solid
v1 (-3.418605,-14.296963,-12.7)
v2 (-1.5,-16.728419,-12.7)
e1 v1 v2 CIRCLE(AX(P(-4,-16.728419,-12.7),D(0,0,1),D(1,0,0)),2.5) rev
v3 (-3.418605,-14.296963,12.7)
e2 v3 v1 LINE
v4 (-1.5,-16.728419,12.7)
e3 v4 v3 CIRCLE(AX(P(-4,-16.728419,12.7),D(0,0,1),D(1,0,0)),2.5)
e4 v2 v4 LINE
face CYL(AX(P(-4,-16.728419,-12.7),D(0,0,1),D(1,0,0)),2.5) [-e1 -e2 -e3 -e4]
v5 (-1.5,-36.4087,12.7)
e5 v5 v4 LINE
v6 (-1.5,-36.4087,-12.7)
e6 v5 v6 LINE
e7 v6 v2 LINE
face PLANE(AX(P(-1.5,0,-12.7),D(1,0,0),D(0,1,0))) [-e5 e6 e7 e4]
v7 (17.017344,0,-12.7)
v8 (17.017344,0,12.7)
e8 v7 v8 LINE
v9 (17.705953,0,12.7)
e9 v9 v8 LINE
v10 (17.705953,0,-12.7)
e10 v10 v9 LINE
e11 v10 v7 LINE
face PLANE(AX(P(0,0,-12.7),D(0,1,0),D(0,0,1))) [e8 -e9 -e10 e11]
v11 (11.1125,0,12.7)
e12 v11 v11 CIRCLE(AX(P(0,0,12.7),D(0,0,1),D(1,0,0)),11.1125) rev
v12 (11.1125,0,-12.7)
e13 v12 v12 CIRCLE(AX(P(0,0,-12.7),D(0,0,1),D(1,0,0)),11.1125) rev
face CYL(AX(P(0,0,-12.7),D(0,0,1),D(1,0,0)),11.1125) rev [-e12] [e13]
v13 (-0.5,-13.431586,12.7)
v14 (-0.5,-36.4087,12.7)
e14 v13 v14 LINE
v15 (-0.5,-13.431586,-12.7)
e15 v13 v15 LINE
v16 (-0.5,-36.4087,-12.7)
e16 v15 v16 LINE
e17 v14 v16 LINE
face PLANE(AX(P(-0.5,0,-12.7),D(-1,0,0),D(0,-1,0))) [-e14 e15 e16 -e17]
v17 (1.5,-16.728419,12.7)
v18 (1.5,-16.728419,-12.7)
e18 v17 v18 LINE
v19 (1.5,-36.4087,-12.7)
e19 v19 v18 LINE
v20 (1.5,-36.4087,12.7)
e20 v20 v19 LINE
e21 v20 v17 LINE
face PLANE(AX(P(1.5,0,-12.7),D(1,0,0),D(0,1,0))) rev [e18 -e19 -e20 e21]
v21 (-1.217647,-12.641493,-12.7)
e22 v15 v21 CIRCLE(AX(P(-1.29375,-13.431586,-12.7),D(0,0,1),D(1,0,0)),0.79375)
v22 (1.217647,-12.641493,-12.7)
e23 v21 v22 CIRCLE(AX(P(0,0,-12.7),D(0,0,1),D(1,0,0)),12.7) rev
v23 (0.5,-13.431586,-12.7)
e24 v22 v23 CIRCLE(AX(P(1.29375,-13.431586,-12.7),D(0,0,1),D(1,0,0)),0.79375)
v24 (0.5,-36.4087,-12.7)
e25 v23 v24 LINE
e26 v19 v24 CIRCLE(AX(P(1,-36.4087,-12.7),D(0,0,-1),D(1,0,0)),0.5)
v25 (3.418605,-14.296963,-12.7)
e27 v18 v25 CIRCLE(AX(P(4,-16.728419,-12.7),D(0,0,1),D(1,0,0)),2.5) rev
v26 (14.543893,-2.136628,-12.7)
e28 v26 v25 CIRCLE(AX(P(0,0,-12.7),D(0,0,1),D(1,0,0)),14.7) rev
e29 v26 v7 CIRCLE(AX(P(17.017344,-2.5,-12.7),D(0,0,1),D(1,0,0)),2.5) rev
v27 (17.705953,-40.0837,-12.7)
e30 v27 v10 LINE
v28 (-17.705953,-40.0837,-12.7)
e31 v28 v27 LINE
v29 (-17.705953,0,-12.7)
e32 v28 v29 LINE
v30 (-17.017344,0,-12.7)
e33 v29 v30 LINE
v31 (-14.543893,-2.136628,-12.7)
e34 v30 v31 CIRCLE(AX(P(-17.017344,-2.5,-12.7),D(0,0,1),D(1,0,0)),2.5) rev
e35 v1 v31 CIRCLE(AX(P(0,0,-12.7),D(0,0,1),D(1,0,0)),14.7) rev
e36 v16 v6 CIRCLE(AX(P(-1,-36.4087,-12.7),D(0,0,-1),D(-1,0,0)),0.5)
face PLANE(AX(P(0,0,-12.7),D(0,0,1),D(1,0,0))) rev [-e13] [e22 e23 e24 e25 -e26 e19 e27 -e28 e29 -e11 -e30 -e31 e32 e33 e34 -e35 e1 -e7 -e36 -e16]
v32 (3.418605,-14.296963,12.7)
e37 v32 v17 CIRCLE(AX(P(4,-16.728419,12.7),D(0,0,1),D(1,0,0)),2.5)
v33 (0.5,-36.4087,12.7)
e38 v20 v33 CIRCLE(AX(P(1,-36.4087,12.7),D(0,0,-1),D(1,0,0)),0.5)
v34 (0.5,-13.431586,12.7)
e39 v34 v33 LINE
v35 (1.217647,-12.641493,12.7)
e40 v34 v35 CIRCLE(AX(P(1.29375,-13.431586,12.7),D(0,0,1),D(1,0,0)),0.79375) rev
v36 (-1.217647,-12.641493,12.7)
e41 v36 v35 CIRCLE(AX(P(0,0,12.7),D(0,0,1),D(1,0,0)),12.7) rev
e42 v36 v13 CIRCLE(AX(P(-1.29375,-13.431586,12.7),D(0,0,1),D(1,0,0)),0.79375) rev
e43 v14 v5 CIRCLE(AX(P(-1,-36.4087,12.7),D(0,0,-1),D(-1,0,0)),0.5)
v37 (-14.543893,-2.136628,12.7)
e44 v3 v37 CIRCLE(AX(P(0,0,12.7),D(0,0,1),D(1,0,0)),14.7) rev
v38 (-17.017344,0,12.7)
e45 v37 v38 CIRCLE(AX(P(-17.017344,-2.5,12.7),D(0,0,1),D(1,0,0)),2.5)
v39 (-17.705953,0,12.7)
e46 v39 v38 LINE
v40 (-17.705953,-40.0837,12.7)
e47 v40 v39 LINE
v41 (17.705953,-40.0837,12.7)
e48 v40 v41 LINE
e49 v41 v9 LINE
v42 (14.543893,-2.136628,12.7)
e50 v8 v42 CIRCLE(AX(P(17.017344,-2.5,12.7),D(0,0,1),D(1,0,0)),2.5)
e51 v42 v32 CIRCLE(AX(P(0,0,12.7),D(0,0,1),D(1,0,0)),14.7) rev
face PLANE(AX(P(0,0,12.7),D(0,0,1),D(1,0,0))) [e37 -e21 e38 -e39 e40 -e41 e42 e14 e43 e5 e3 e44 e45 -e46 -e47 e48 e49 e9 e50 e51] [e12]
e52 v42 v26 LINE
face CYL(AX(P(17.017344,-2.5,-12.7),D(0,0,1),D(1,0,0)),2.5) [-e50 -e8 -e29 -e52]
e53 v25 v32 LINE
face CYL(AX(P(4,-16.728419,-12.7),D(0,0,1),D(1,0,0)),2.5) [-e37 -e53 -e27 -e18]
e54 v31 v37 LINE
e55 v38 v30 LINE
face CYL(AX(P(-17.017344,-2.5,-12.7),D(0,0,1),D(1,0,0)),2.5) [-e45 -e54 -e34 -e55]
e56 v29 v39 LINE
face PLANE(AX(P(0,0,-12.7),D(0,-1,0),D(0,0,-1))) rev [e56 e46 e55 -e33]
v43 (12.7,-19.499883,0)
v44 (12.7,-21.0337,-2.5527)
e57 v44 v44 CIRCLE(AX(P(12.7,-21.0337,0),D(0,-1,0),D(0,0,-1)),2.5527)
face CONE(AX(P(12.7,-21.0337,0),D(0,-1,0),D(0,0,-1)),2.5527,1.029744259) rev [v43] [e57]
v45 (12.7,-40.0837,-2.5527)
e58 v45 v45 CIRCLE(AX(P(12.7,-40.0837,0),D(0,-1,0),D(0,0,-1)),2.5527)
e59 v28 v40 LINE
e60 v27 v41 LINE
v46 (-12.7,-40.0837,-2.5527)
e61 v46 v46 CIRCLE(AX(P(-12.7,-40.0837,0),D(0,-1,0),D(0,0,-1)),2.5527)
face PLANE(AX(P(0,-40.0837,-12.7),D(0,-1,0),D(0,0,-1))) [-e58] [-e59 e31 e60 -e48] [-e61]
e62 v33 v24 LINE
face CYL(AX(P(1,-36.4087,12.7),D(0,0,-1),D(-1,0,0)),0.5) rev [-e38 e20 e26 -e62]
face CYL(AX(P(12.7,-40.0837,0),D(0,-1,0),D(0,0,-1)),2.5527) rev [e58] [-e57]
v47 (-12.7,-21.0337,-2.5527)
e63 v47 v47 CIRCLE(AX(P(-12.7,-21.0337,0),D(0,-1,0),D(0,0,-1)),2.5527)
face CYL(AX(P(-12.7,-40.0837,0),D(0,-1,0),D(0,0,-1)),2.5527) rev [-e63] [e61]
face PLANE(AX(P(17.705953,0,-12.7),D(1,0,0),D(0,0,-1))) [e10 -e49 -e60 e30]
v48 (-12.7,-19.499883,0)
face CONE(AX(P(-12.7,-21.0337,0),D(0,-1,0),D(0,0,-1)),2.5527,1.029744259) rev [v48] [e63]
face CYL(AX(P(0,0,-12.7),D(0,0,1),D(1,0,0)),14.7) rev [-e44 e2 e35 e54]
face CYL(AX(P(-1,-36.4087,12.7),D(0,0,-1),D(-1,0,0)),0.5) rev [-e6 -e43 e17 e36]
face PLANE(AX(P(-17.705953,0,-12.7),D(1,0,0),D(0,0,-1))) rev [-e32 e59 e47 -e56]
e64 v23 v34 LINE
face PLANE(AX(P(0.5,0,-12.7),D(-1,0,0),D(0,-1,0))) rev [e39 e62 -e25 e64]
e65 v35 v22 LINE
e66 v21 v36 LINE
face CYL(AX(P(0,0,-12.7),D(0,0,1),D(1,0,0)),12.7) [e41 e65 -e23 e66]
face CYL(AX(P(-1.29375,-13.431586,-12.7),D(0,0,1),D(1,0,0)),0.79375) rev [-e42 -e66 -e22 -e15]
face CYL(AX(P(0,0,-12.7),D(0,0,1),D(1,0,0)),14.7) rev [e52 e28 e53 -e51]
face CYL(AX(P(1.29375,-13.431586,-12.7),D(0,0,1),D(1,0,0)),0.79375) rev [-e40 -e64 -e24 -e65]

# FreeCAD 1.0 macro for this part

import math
import FreeCAD as App
import Part
import Sketcher
from FreeCAD import Vector
Q = App.Units.Quantity


def edges_at(feature, points):
    """Names of the edges that pass closest to the given points."""
    edges = feature.Shape.Edges
    near = lambda p: min(range(len(edges)), key=lambda i: edges[i].distToShape(Part.Vertex(*p))[0])
    return sorted({f"Edge{near(p) + 1}" for p in points})

doc = App.newDocument("Part")
body = doc.addObject("PartDesign::Body", "Body")

sketch1 = doc.addObject("Sketcher::SketchObject", "Sketch")
body.addObject(sketch1)
sketch1.AttachmentSupport = (doc.XY_Plane, [""])
sketch1.MapMode = "FlatFace"
sketch1.addGeometry(Part.LineSegment(Vector(0.5, -12.7, 0), Vector(0.5, -30.6, 0)), False)
sketch1.addGeometry(Part.LineSegment(Vector(0.5, -30.6, 0), Vector(1.5, -30.6, 0)), False)
sketch1.addGeometry(Part.LineSegment(Vector(1.5, -30.6, 0), Vector(1.5, -14.6, 0)), False)
sketch1.addGeometry(Part.ArcOfCircle(Part.Circle(Vector(0, 0, 0), Vector(0, 0, 1), 14.7), math.radians(-84), math.radians(0)), False)
sketch1.addGeometry(Part.LineSegment(Vector(14.7, 0, 0), Vector(17.7, 0, 0)), False)
sketch1.addGeometry(Part.LineSegment(Vector(17.7, 0, 0), Vector(17.7, -40.1, 0)), False)
sketch1.addGeometry(Part.LineSegment(Vector(17.7, -40.1, 0), Vector(-17.7, -40.1, 0)), False)
sketch1.addGeometry(Part.LineSegment(Vector(-17.7, -40.1, 0), Vector(-17.7, 0, 0)), False)
sketch1.addGeometry(Part.LineSegment(Vector(-17.7, 0, 0), Vector(-14.7, 0, 0)), False)
sketch1.addGeometry(Part.ArcOfCircle(Part.Circle(Vector(0, 0, 0), Vector(0, 0, 1), 14.7), math.radians(180), math.radians(264)), False)
sketch1.addGeometry(Part.LineSegment(Vector(-1.5, -14.6, 0), Vector(-1.5, -30.6, 0)), False)
sketch1.addGeometry(Part.LineSegment(Vector(-1.5, -30.6, 0), Vector(-0.5, -30.6, 0)), False)
sketch1.addGeometry(Part.LineSegment(Vector(-0.5, -30.6, 0), Vector(-0.5, -12.7, 0)), False)
sketch1.addGeometry(Part.ArcOfCircle(Part.Circle(Vector(0, 0, 0), Vector(0, 0, 1), 12.7), math.radians(-88), math.radians(268)), False)
sketch1.addGeometry(Part.Circle(Vector(0, 0, 0), Vector(0, 0, 1), 11.1), False)
sketch1.addConstraint(Sketcher.Constraint("Coincident", 0, 2, 1, 1))
sketch1.addConstraint(Sketcher.Constraint("Coincident", 1, 2, 2, 1))
sketch1.addConstraint(Sketcher.Constraint("Coincident", 2, 2, 3, 1))
sketch1.addConstraint(Sketcher.Constraint("Coincident", 3, 2, 4, 1))
sketch1.addConstraint(Sketcher.Constraint("Coincident", 4, 2, 5, 1))
sketch1.addConstraint(Sketcher.Constraint("Coincident", 5, 2, 6, 1))
sketch1.addConstraint(Sketcher.Constraint("Coincident", 6, 2, 7, 1))
sketch1.addConstraint(Sketcher.Constraint("Coincident", 7, 2, 8, 1))
sketch1.addConstraint(Sketcher.Constraint("Coincident", 8, 2, 9, 1))
sketch1.addConstraint(Sketcher.Constraint("Coincident", 9, 2, 10, 1))
sketch1.addConstraint(Sketcher.Constraint("Coincident", 10, 2, 11, 1))
sketch1.addConstraint(Sketcher.Constraint("Coincident", 11, 2, 12, 1))
sketch1.addConstraint(Sketcher.Constraint("Coincident", 12, 2, 13, 2))
sketch1.addConstraint(Sketcher.Constraint("Coincident", 13, 1, 0, 1))
sketch1.addConstraint(Sketcher.Constraint("Vertical", 0))
sketch1.addConstraint(Sketcher.Constraint("Horizontal", 1))
sketch1.addConstraint(Sketcher.Constraint("Vertical", 2))
sketch1.addConstraint(Sketcher.Constraint("Horizontal", 4))
sketch1.addConstraint(Sketcher.Constraint("Vertical", 5))
sketch1.addConstraint(Sketcher.Constraint("Horizontal", 6))
sketch1.addConstraint(Sketcher.Constraint("Vertical", 7))
sketch1.addConstraint(Sketcher.Constraint("Horizontal", 8))
sketch1.addConstraint(Sketcher.Constraint("Vertical", 10))
sketch1.addConstraint(Sketcher.Constraint("Horizontal", 11))
sketch1.addConstraint(Sketcher.Constraint("Vertical", 12))
sketch1.addConstraint(Sketcher.Constraint("Coincident", 3, 3, -1, 1))
sketch1.addConstraint(Sketcher.Constraint("Coincident", 9, 3, -1, 1))
sketch1.addConstraint(Sketcher.Constraint("Coincident", 13, 3, -1, 1))
sketch1.addConstraint(Sketcher.Constraint("Coincident", 14, 3, -1, 1))
sketch1.addConstraint(Sketcher.Constraint("Equal", 3, 9))
sketch1.addConstraint(Sketcher.Constraint("Symmetric", 4, 2, 7, 2, -1, 1))
sketch1.addConstraint(Sketcher.Constraint("Symmetric", 1, 2, 10, 2, -2))
sketch1.addConstraint(Sketcher.Constraint("PointOnObject", 3, 2, -1))
sketch1.addConstraint(Sketcher.Constraint("Horizontal", 12, 2, 13, 1))
sketch1.addConstraint(Sketcher.Constraint("Radius", 13, Q("0.5 in")))
sketch1.addConstraint(Sketcher.Constraint("Diameter", 14, Q("0.875 in")))
sketch1.addConstraint(Sketcher.Constraint("Radius", 3, 14.7))
sketch1.addConstraint(Sketcher.Constraint("DistanceY", 5, 2, 1, 2, Q("0.375 in")))
sketch1.addConstraint(Sketcher.Constraint("DistanceX", 1, 1, 1, 2, 1.0))
sketch1.addConstraint(Sketcher.Constraint("DistanceY", 5, 2, 5, 1, 40.0837))
sketch1.addConstraint(Sketcher.Constraint("DistanceY", 2, 1, 2, 2, 15.935431))
sketch1.addConstraint(Sketcher.Constraint("DistanceX", 4, 1, 4, 2, 3.005953))
pad1 = doc.addObject("PartDesign::Pad", "Pad")
body.addObject(pad1)
pad1.Profile = sketch1
pad1.Length = Q("1 in")
pad1.Midplane = True
doc.recompute()

fillet = doc.addObject("PartDesign::Fillet", "Fillet")
body.addObject(fillet)
fillet.Base = (pad1, edges_at(pad1, [(-0.5, -12.69, 0), (0.5, -12.69, 0)]))
fillet.Radius = Q("0.03125 in")
doc.recompute()

fillet2 = doc.addObject("PartDesign::Fillet", "Fillet001")
body.addObject(fillet2)
fillet2.Base = (fillet, edges_at(fillet, [(-0.5, -30.559, 0), (0.5, -30.559, 0)]))
fillet2.Radius = Q("0.03125 in")

sketch2 = doc.addObject("Sketcher::SketchObject", "Sketch001")
body.addObject(sketch2)
sketch2.AttachmentSupport = (doc.XZ_Plane, [""])
sketch2.MapMode = "FlatFace"
sketch2.AttachmentOffset = App.Placement(Vector(0, 0, 40.0837), App.Rotation())
sketch2.addGeometry(Part.Circle(Vector(-12.7, 0, 0), Vector(0, 0, 1), 2.6), False)
sketch2.addGeometry(Part.Circle(Vector(12.7, 0, 0), Vector(0, 0, 1), 2.6), False)
sketch2.addConstraint(Sketcher.Constraint("Equal", 0, 1))
sketch2.addConstraint(Sketcher.Constraint("Symmetric", 0, 3, 1, 3, -1, 1))
sketch2.addConstraint(Sketcher.Constraint("PointOnObject", 0, 3, -1))
sketch2.addConstraint(Sketcher.Constraint("Diameter", 0, Q("0.201 in")))
sketch2.addConstraint(Sketcher.Constraint("DistanceX", 0, 3, 1, 3, Q("1 in")))
doc.recompute()
hole = doc.addObject("PartDesign::Hole", "Hole")
body.addObject(hole)
hole.Profile = sketch2
hole.ThreadType = "None"
hole.Diameter = Q("0.201 in")
hole.DepthType = "Dimension"
hole.Depth = Q("0.75 in")
hole.DrillPoint = "Angled"
hole.DrillPointAngle = 118

sketch3 = doc.addObject("Sketcher::SketchObject", "Sketch002")
body.addObject(sketch3)
sketch3.AttachmentSupport = (doc.XY_Plane, [""])
sketch3.MapMode = "FlatFace"
sketch3.AttachmentOffset = App.Placement(Vector(0, 0, -0.5 * 25.4), App.Rotation())
sketch3.addGeometry(Part.LineSegment(Vector(-0.5, -29.66, 0), Vector(-0.5, -36.41, 0)), False)
sketch3.addGeometry(Part.ArcOfCircle(Part.Circle(Vector(-1, -36.41, 0), Vector(0, 0, 1), 0.5), math.radians(180), math.radians(360)), False)
sketch3.addGeometry(Part.LineSegment(Vector(-1.5, -36.41, 0), Vector(-1.5, -30.56, 0)), False)
sketch3.addGeometry(Part.LineSegment(Vector(-1.5, -30.56, 0), Vector(-1.4, -30.56, 0)), False)
sketch3.addGeometry(Part.ArcOfCircle(Part.Circle(Vector(-1.4, -29.66, 0), Vector(0, 0, 1), 0.9), math.radians(-90), math.radians(0)), False)
sketch3.addGeometry(Part.LineSegment(Vector(1.4, -30.56, 0), Vector(1.5, -30.56, 0)), False)
sketch3.addGeometry(Part.LineSegment(Vector(1.5, -30.56, 0), Vector(1.5, -36.41, 0)), False)
sketch3.addGeometry(Part.ArcOfCircle(Part.Circle(Vector(1, -36.41, 0), Vector(0, 0, 1), 0.5), math.radians(180), math.radians(360)), False)
sketch3.addGeometry(Part.LineSegment(Vector(0.5, -36.41, 0), Vector(0.5, -29.66, 0)), False)
sketch3.addGeometry(Part.ArcOfCircle(Part.Circle(Vector(1.4, -29.66, 0), Vector(0, 0, 1), 0.9), math.radians(180), math.radians(270)), False)
sketch3.addConstraint(Sketcher.Constraint("Tangent", 0, 2, 1, 2))
sketch3.addConstraint(Sketcher.Constraint("Tangent", 1, 1, 2, 1))
sketch3.addConstraint(Sketcher.Constraint("Coincident", 2, 2, 3, 1))
sketch3.addConstraint(Sketcher.Constraint("Tangent", 3, 2, 4, 1))
sketch3.addConstraint(Sketcher.Constraint("Tangent", 4, 2, 0, 1))
sketch3.addConstraint(Sketcher.Constraint("Coincident", 5, 2, 6, 1))
sketch3.addConstraint(Sketcher.Constraint("Tangent", 6, 2, 7, 2))
sketch3.addConstraint(Sketcher.Constraint("Tangent", 7, 1, 8, 1))
sketch3.addConstraint(Sketcher.Constraint("Tangent", 8, 2, 9, 1))
sketch3.addConstraint(Sketcher.Constraint("Tangent", 9, 2, 5, 1))
sketch3.addConstraint(Sketcher.Constraint("Vertical", 0))
sketch3.addConstraint(Sketcher.Constraint("Vertical", 2))
sketch3.addConstraint(Sketcher.Constraint("Horizontal", 3))
sketch3.addConstraint(Sketcher.Constraint("Horizontal", 5))
sketch3.addConstraint(Sketcher.Constraint("Vertical", 6))
sketch3.addConstraint(Sketcher.Constraint("Vertical", 8))
sketch3.addConstraint(Sketcher.Constraint("Equal", 1, 7))
sketch3.addConstraint(Sketcher.Constraint("Equal", 4, 9))
sketch3.addConstraint(Sketcher.Constraint("Symmetric", 1, 3, 7, 3, -2))
sketch3.addConstraint(Sketcher.Constraint("Horizontal", 4, 3, 9, 3))
sketch3.addConstraint(Sketcher.Constraint("Radius", 1, 0.5))
sketch3.addConstraint(Sketcher.Constraint("Radius", 4, 0.9))
sketch3.addConstraint(Sketcher.Constraint("DistanceY", 0, 2, 0, 1, 6.75))
sketch3.addConstraint(Sketcher.Constraint("DistanceX", 1, 3, -1, 1, 1.0))
sketch3.addConstraint(Sketcher.Constraint("DistanceY", 1, 3, -1, 1, 36.4087))
pocket1 = doc.addObject("PartDesign::Pocket", "Pocket")
body.addObject(pocket1)
pocket1.Profile = sketch3
pocket1.Type = "ThroughAll"
pocket1.Reversed = True
doc.recompute()

fillet3 = doc.addObject("PartDesign::Fillet", "Fillet002")
body.addObject(fillet3)
fillet3.Base = (pocket1, edges_at(pocket1, [
    (-14.7, 0, 0),
    (-1.5, -14.623, 0),
    (1.5, -14.623, 0),
    (14.7, 0, 0),
]))
fillet3.Radius = 2.5

doc.recompute()
